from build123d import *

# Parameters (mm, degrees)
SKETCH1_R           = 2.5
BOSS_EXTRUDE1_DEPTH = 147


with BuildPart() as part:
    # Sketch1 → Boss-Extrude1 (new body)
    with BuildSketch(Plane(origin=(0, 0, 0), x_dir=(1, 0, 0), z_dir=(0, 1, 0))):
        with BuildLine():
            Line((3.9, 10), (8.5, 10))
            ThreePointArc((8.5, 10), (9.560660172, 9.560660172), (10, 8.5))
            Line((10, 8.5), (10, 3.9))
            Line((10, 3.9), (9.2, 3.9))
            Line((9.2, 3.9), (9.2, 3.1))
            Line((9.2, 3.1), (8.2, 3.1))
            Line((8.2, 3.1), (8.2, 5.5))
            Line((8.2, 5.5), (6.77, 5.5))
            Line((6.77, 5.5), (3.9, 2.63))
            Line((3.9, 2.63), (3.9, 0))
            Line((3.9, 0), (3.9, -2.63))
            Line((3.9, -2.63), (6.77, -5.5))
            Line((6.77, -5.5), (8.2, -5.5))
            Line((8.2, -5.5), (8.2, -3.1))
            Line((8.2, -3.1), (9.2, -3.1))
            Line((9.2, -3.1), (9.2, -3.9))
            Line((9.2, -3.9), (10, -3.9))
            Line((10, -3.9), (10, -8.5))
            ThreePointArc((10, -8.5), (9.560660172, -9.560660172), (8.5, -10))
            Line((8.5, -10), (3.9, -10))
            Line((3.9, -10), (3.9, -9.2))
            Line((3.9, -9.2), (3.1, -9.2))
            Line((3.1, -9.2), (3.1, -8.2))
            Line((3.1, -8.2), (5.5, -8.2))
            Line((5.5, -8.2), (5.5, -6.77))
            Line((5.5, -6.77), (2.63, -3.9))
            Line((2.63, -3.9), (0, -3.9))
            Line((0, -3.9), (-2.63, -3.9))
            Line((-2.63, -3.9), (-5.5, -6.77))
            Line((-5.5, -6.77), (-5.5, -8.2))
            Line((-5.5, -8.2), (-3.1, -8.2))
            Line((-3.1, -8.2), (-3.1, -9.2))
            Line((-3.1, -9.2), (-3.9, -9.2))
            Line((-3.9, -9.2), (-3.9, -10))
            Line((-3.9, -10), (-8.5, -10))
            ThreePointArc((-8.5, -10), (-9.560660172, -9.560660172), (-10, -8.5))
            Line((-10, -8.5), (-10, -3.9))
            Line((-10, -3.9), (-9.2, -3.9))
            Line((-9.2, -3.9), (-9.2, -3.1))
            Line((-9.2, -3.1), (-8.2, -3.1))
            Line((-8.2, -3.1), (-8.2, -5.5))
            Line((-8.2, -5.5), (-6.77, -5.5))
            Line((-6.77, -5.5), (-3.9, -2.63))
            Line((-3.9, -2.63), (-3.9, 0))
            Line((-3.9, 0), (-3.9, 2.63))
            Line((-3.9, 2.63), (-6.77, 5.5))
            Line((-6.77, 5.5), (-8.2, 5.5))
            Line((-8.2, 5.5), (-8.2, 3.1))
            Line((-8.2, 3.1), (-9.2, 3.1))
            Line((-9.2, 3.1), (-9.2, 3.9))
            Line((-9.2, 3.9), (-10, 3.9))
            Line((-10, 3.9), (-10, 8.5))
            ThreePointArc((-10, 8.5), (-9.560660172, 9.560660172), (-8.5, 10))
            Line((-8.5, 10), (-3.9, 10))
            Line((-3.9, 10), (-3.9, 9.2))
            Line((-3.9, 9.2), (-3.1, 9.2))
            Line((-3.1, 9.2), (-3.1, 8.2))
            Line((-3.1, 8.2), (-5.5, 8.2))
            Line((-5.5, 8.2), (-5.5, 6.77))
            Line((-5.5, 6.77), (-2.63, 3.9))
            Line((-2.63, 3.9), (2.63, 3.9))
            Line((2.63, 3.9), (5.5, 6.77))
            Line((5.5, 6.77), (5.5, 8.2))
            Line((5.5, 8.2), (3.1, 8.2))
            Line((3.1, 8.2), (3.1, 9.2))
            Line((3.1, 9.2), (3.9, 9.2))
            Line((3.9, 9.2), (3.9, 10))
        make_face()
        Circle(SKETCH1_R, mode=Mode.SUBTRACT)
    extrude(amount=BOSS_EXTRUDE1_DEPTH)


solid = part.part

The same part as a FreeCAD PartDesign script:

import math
import FreeCAD as App
import Part
import Sketcher
from FreeCAD import Vector

doc = App.newDocument("Part")
body = doc.addObject("PartDesign::Body", "Body")

# Sketch on XZ plane
sketch1 = doc.addObject("Sketcher::SketchObject", "Sketch")
body.addObject(sketch1)
sketch1.AttachmentSupport = (doc.XZ_Plane, [""])
sketch1.MapMode = "FlatFace"
sketch1.addGeometry(Part.LineSegment(Vector(8.5, -10, 0), Vector(3.9, -10, 0)), False)
sketch1.addGeometry(Part.LineSegment(Vector(3.9, -10, 0), Vector(3.9, -9.2, 0)), False)
sketch1.addGeometry(Part.LineSegment(Vector(3.9, -9.2, 0), Vector(3.1, -9.2, 0)), False)
sketch1.addGeometry(Part.LineSegment(Vector(3.1, -9.2, 0), Vector(3.1, -8.2, 0)), False)
sketch1.addGeometry(Part.LineSegment(Vector(3.1, -8.2, 0), Vector(5.5, -8.2, 0)), False)
sketch1.addGeometry(Part.LineSegment(Vector(5.5, -8.2, 0), Vector(5.5, -6.77, 0)), False)
sketch1.addGeometry(Part.LineSegment(Vector(5.5, -6.77, 0), Vector(2.63, -3.9, 0)), False)
sketch1.addGeometry(Part.LineSegment(Vector(2.63, -3.9, 0), Vector(-2.63, -3.9, 0)), False)
sketch1.addGeometry(Part.LineSegment(Vector(-2.63, -3.9, 0), Vector(-5.5, -6.77, 0)), False)
sketch1.addGeometry(Part.LineSegment(Vector(-5.5, -6.77, 0), Vector(-5.5, -8.2, 0)), False)
sketch1.addGeometry(Part.LineSegment(Vector(-5.5, -8.2, 0), Vector(-3.1, -8.2, 0)), False)
sketch1.addGeometry(Part.LineSegment(Vector(-3.1, -8.2, 0), Vector(-3.1, -9.2, 0)), False)
sketch1.addGeometry(Part.LineSegment(Vector(-3.1, -9.2, 0), Vector(-3.9, -9.2, 0)), False)
sketch1.addGeometry(Part.LineSegment(Vector(-3.9, -9.2, 0), Vector(-3.9, -10, 0)), False)
sketch1.addGeometry(Part.LineSegment(Vector(-3.9, -10, 0), Vector(-8.5, -10, 0)), False)
sketch1.addGeometry(Part.ArcOfCircle(Part.Circle(Vector(-8.5, -8.5, 0), Vector(0, 0, 1), 1.5), math.radians(180), math.radians(270)), False)
sketch1.addGeometry(Part.LineSegment(Vector(-10, -8.5, 0), Vector(-10, -3.9, 0)), False)
sketch1.addGeometry(Part.LineSegment(Vector(-10, -3.9, 0), Vector(-9.2, -3.9, 0)), False)
sketch1.addGeometry(Part.LineSegment(Vector(-9.2, -3.9, 0), Vector(-9.2, -3.1, 0)), False)
sketch1.addGeometry(Part.LineSegment(Vector(-9.2, -3.1, 0), Vector(-8.2, -3.1, 0)), False)
sketch1.addGeometry(Part.LineSegment(Vector(-8.2, -3.1, 0), Vector(-8.2, -5.5, 0)), False)
sketch1.addGeometry(Part.LineSegment(Vector(-8.2, -5.5, 0), Vector(-6.77, -5.5, 0)), False)
sketch1.addGeometry(Part.LineSegment(Vector(-6.77, -5.5, 0), Vector(-3.9, -2.63, 0)), False)
sketch1.addGeometry(Part.LineSegment(Vector(-3.9, -2.63, 0), Vector(-3.9, 2.63, 0)), False)
sketch1.addGeometry(Part.LineSegment(Vector(-3.9, 2.63, 0), Vector(-6.77, 5.5, 0)), False)
sketch1.addGeometry(Part.LineSegment(Vector(-6.77, 5.5, 0), Vector(-8.2, 5.5, 0)), False)
sketch1.addGeometry(Part.LineSegment(Vector(-8.2, 5.5, 0), Vector(-8.2, 3.1, 0)), False)
sketch1.addGeometry(Part.LineSegment(Vector(-8.2, 3.1, 0), Vector(-9.2, 3.1, 0)), False)
sketch1.addGeometry(Part.LineSegment(Vector(-9.2, 3.1, 0), Vector(-9.2, 3.9, 0)), False)
sketch1.addGeometry(Part.LineSegment(Vector(-9.2, 3.9, 0), Vector(-10, 3.9, 0)), False)
sketch1.addGeometry(Part.LineSegment(Vector(-10, 3.9, 0), Vector(-10, 8.5, 0)), False)
sketch1.addGeometry(Part.ArcOfCircle(Part.Circle(Vector(-8.5, 8.5, 0), Vector(0, 0, 1), 1.5), math.radians(90), math.radians(180)), False)
sketch1.addGeometry(Part.LineSegment(Vector(-8.5, 10, 0), Vector(-3.9, 10, 0)), False)
sketch1.addGeometry(Part.LineSegment(Vector(-3.9, 10, 0), Vector(-3.9, 9.2, 0)), False)
sketch1.addGeometry(Part.LineSegment(Vector(-3.9, 9.2, 0), Vector(-3.1, 9.2, 0)), False)
sketch1.addGeometry(Part.LineSegment(Vector(-3.1, 9.2, 0), Vector(-3.1, 8.2, 0)), False)
sketch1.addGeometry(Part.LineSegment(Vector(-3.1, 8.2, 0), Vector(-5.5, 8.2, 0)), False)
sketch1.addGeometry(Part.LineSegment(Vector(-5.5, 8.2, 0), Vector(-5.5, 6.77, 0)), False)
sketch1.addGeometry(Part.LineSegment(Vector(-5.5, 6.77, 0), Vector(-2.63, 3.9, 0)), False)
sketch1.addGeometry(Part.LineSegment(Vector(-2.63, 3.9, 0), Vector(2.63, 3.9, 0)), False)
sketch1.addGeometry(Part.LineSegment(Vector(2.63, 3.9, 0), Vector(5.5, 6.77, 0)), False)
sketch1.addGeometry(Part.LineSegment(Vector(5.5, 6.77, 0), Vector(5.5, 8.2, 0)), False)
sketch1.addGeometry(Part.LineSegment(Vector(5.5, 8.2, 0), Vector(3.1, 8.2, 0)), False)
sketch1.addGeometry(Part.LineSegment(Vector(3.1, 8.2, 0), Vector(3.1, 9.2, 0)), False)
sketch1.addGeometry(Part.LineSegment(Vector(3.1, 9.2, 0), Vector(3.9, 9.2, 0)), False)
sketch1.addGeometry(Part.LineSegment(Vector(3.9, 9.2, 0), Vector(3.9, 10, 0)), False)
sketch1.addGeometry(Part.LineSegment(Vector(3.9, 10, 0), Vector(8.5, 10, 0)), False)
sketch1.addGeometry(Part.ArcOfCircle(Part.Circle(Vector(8.5, 8.5, 0), Vector(0, 0, 1), 1.5), math.radians(0), math.radians(90)), False)
sketch1.addGeometry(Part.LineSegment(Vector(10, 8.5, 0), Vector(10, 3.9, 0)), False)
sketch1.addGeometry(Part.LineSegment(Vector(10, 3.9, 0), Vector(9.2, 3.9, 0)), False)
sketch1.addGeometry(Part.LineSegment(Vector(9.2, 3.9, 0), Vector(9.2, 3.1, 0)), False)
sketch1.addGeometry(Part.LineSegment(Vector(9.2, 3.1, 0), Vector(8.2, 3.1, 0)), False)
sketch1.addGeometry(Part.LineSegment(Vector(8.2, 3.1, 0), Vector(8.2, 5.5, 0)), False)
sketch1.addGeometry(Part.LineSegment(Vector(8.2, 5.5, 0), Vector(6.77, 5.5, 0)), False)
sketch1.addGeometry(Part.LineSegment(Vector(6.77, 5.5, 0), Vector(3.9, 2.63, 0)), False)
sketch1.addGeometry(Part.LineSegment(Vector(3.9, 2.63, 0), Vector(3.9, -2.63, 0)), False)
sketch1.addGeometry(Part.LineSegment(Vector(3.9, -2.63, 0), Vector(6.77, -5.5, 0)), False)
sketch1.addGeometry(Part.LineSegment(Vector(6.77, -5.5, 0), Vector(8.2, -5.5, 0)), False)
sketch1.addGeometry(Part.LineSegment(Vector(8.2, -5.5, 0), Vector(8.2, -3.1, 0)), False)
sketch1.addGeometry(Part.LineSegment(Vector(8.2, -3.1, 0), Vector(9.2, -3.1, 0)), False)
sketch1.addGeometry(Part.LineSegment(Vector(9.2, -3.1, 0), Vector(9.2, -3.9, 0)), False)
sketch1.addGeometry(Part.LineSegment(Vector(9.2, -3.9, 0), Vector(10, -3.9, 0)), False)
sketch1.addGeometry(Part.LineSegment(Vector(10, -3.9, 0), Vector(10, -8.5, 0)), False)
sketch1.addGeometry(Part.ArcOfCircle(Part.Circle(Vector(8.5, -8.5, 0), Vector(0, 0, 1), 1.5), math.radians(-90), math.radians(0)), False)
sketch1.addGeometry(Part.Circle(Vector(0, 0, 0), Vector(0, 0, 1), 2.5), False)
sketch1.addConstraint(Sketcher.Constraint("Coincident", 0, 2, 1, 1))
sketch1.addConstraint(Sketcher.Constraint("Coincident", 1, 2, 2, 1))
sketch1.addConstraint(Sketcher.Constraint("Coincident", 2, 2, 3, 1))
sketch1.addConstraint(Sketcher.Constraint("Coincident", 3, 2, 4, 1))
sketch1.addConstraint(Sketcher.Constraint("Coincident", 4, 2, 5, 1))
sketch1.addConstraint(Sketcher.Constraint("Coincident", 5, 2, 6, 1))
sketch1.addConstraint(Sketcher.Constraint("Coincident", 6, 2, 7, 1))
sketch1.addConstraint(Sketcher.Constraint("Coincident", 7, 2, 8, 1))
sketch1.addConstraint(Sketcher.Constraint("Coincident", 8, 2, 9, 1))
sketch1.addConstraint(Sketcher.Constraint("Coincident", 9, 2, 10, 1))
sketch1.addConstraint(Sketcher.Constraint("Coincident", 10, 2, 11, 1))
sketch1.addConstraint(Sketcher.Constraint("Coincident", 11, 2, 12, 1))
sketch1.addConstraint(Sketcher.Constraint("Coincident", 12, 2, 13, 1))
sketch1.addConstraint(Sketcher.Constraint("Coincident", 13, 2, 14, 1))
sketch1.addConstraint(Sketcher.Constraint("Tangent", 14, 2, 15, 2))
sketch1.addConstraint(Sketcher.Constraint("Tangent", 15, 1, 16, 1))
sketch1.addConstraint(Sketcher.Constraint("Coincident", 16, 2, 17, 1))
sketch1.addConstraint(Sketcher.Constraint("Coincident", 17, 2, 18, 1))
sketch1.addConstraint(Sketcher.Constraint("Coincident", 18, 2, 19, 1))
sketch1.addConstraint(Sketcher.Constraint("Coincident", 19, 2, 20, 1))
sketch1.addConstraint(Sketcher.Constraint("Coincident", 20, 2, 21, 1))
sketch1.addConstraint(Sketcher.Constraint("Coincident", 21, 2, 22, 1))
sketch1.addConstraint(Sketcher.Constraint("Coincident", 22, 2, 23, 1))
sketch1.addConstraint(Sketcher.Constraint("Coincident", 23, 2, 24, 1))
sketch1.addConstraint(Sketcher.Constraint("Coincident", 24, 2, 25, 1))
sketch1.addConstraint(Sketcher.Constraint("Coincident", 25, 2, 26, 1))
sketch1.addConstraint(Sketcher.Constraint("Coincident", 26, 2, 27, 1))
sketch1.addConstraint(Sketcher.Constraint("Coincident", 27, 2, 28, 1))
sketch1.addConstraint(Sketcher.Constraint("Coincident", 28, 2, 29, 1))
sketch1.addConstraint(Sketcher.Constraint("Coincident", 29, 2, 30, 1))
sketch1.addConstraint(Sketcher.Constraint("Tangent", 30, 2, 31, 2))
sketch1.addConstraint(Sketcher.Constraint("Tangent", 31, 1, 32, 1))
sketch1.addConstraint(Sketcher.Constraint("Coincident", 32, 2, 33, 1))
sketch1.addConstraint(Sketcher.Constraint("Coincident", 33, 2, 34, 1))
sketch1.addConstraint(Sketcher.Constraint("Coincident", 34, 2, 35, 1))
sketch1.addConstraint(Sketcher.Constraint("Coincident", 35, 2, 36, 1))
sketch1.addConstraint(Sketcher.Constraint("Coincident", 36, 2, 37, 1))
sketch1.addConstraint(Sketcher.Constraint("Coincident", 37, 2, 38, 1))
sketch1.addConstraint(Sketcher.Constraint("Coincident", 38, 2, 39, 1))
sketch1.addConstraint(Sketcher.Constraint("Coincident", 39, 2, 40, 1))
sketch1.addConstraint(Sketcher.Constraint("Coincident", 40, 2, 41, 1))
sketch1.addConstraint(Sketcher.Constraint("Coincident", 41, 2, 42, 1))
sketch1.addConstraint(Sketcher.Constraint("Coincident", 42, 2, 43, 1))
sketch1.addConstraint(Sketcher.Constraint("Coincident", 43, 2, 44, 1))
sketch1.addConstraint(Sketcher.Constraint("Coincident", 44, 2, 45, 1))
sketch1.addConstraint(Sketcher.Constraint("Coincident", 45, 2, 46, 1))
sketch1.addConstraint(Sketcher.Constraint("Tangent", 46, 2, 47, 2))
sketch1.addConstraint(Sketcher.Constraint("Tangent", 47, 1, 48, 1))
sketch1.addConstraint(Sketcher.Constraint("Coincident", 48, 2, 49, 1))
sketch1.addConstraint(Sketcher.Constraint("Coincident", 49, 2, 50, 1))
sketch1.addConstraint(Sketcher.Constraint("Coincident", 50, 2, 51, 1))
sketch1.addConstraint(Sketcher.Constraint("Coincident", 51, 2, 52, 1))
sketch1.addConstraint(Sketcher.Constraint("Coincident", 52, 2, 53, 1))
sketch1.addConstraint(Sketcher.Constraint("Coincident", 53, 2, 54, 1))
sketch1.addConstraint(Sketcher.Constraint("Coincident", 54, 2, 55, 1))
sketch1.addConstraint(Sketcher.Constraint("Coincident", 55, 2, 56, 1))
sketch1.addConstraint(Sketcher.Constraint("Coincident", 56, 2, 57, 1))
sketch1.addConstraint(Sketcher.Constraint("Coincident", 57, 2, 58, 1))
sketch1.addConstraint(Sketcher.Constraint("Coincident", 58, 2, 59, 1))
sketch1.addConstraint(Sketcher.Constraint("Coincident", 59, 2, 60, 1))
sketch1.addConstraint(Sketcher.Constraint("Coincident", 60, 2, 61, 1))
sketch1.addConstraint(Sketcher.Constraint("Coincident", 61, 2, 62, 1))
sketch1.addConstraint(Sketcher.Constraint("Tangent", 62, 2, 63, 2))
sketch1.addConstraint(Sketcher.Constraint("Tangent", 63, 1, 0, 1))
sketch1.addConstraint(Sketcher.Constraint("Horizontal", 0))
sketch1.addConstraint(Sketcher.Constraint("Vertical", 1))
sketch1.addConstraint(Sketcher.Constraint("Horizontal", 2))
sketch1.addConstraint(Sketcher.Constraint("Vertical", 3))
sketch1.addConstraint(Sketcher.Constraint("Horizontal", 4))
sketch1.addConstraint(Sketcher.Constraint("Vertical", 5))
sketch1.addConstraint(Sketcher.Constraint("Horizontal", 7))
sketch1.addConstraint(Sketcher.Constraint("Vertical", 9))
sketch1.addConstraint(Sketcher.Constraint("Horizontal", 10))
sketch1.addConstraint(Sketcher.Constraint("Vertical", 11))
sketch1.addConstraint(Sketcher.Constraint("Horizontal", 12))
sketch1.addConstraint(Sketcher.Constraint("Vertical", 13))
sketch1.addConstraint(Sketcher.Constraint("Horizontal", 14))
sketch1.addConstraint(Sketcher.Constraint("Vertical", 16))
sketch1.addConstraint(Sketcher.Constraint("Horizontal", 17))
sketch1.addConstraint(Sketcher.Constraint("Vertical", 18))
sketch1.addConstraint(Sketcher.Constraint("Horizontal", 19))
sketch1.addConstraint(Sketcher.Constraint("Vertical", 20))
sketch1.addConstraint(Sketcher.Constraint("Horizontal", 21))
sketch1.addConstraint(Sketcher.Constraint("Vertical", 23))
sketch1.addConstraint(Sketcher.Constraint("Horizontal", 25))
sketch1.addConstraint(Sketcher.Constraint("Vertical", 26))
sketch1.addConstraint(Sketcher.Constraint("Horizontal", 27))
sketch1.addConstraint(Sketcher.Constraint("Vertical", 28))
sketch1.addConstraint(Sketcher.Constraint("Horizontal", 29))
sketch1.addConstraint(Sketcher.Constraint("Vertical", 30))
sketch1.addConstraint(Sketcher.Constraint("Horizontal", 32))
sketch1.addConstraint(Sketcher.Constraint("Vertical", 33))
sketch1.addConstraint(Sketcher.Constraint("Horizontal", 34))
sketch1.addConstraint(Sketcher.Constraint("Vertical", 35))
sketch1.addConstraint(Sketcher.Constraint("Horizontal", 36))
sketch1.addConstraint(Sketcher.Constraint("Vertical", 37))
sketch1.addConstraint(Sketcher.Constraint("Horizontal", 39))
sketch1.addConstraint(Sketcher.Constraint("Vertical", 41))
sketch1.addConstraint(Sketcher.Constraint("Horizontal", 42))
sketch1.addConstraint(Sketcher.Constraint("Vertical", 43))
sketch1.addConstraint(Sketcher.Constraint("Horizontal", 44))
sketch1.addConstraint(Sketcher.Constraint("Vertical", 45))
sketch1.addConstraint(Sketcher.Constraint("Horizontal", 46))
sketch1.addConstraint(Sketcher.Constraint("Vertical", 48))
sketch1.addConstraint(Sketcher.Constraint("Horizontal", 49))
sketch1.addConstraint(Sketcher.Constraint("Vertical", 50))
sketch1.addConstraint(Sketcher.Constraint("Horizontal", 51))
sketch1.addConstraint(Sketcher.Constraint("Vertical", 52))
sketch1.addConstraint(Sketcher.Constraint("Horizontal", 53))
sketch1.addConstraint(Sketcher.Constraint("Vertical", 55))
sketch1.addConstraint(Sketcher.Constraint("Horizontal", 57))
sketch1.addConstraint(Sketcher.Constraint("Vertical", 58))
sketch1.addConstraint(Sketcher.Constraint("Horizontal", 59))
sketch1.addConstraint(Sketcher.Constraint("Vertical", 60))
sketch1.addConstraint(Sketcher.Constraint("Horizontal", 61))
sketch1.addConstraint(Sketcher.Constraint("Vertical", 62))
sketch1.addConstraint(Sketcher.Constraint("Coincident", 64, 3, -1, 1))
sketch1.addConstraint(Sketcher.Constraint("Equal", 15, 31))
sketch1.addConstraint(Sketcher.Constraint("Equal", 31, 47))
sketch1.addConstraint(Sketcher.Constraint("Equal", 47, 63))
sketch1.addConstraint(Sketcher.Constraint("Symmetric", 15, 3, 47, 3, -1, 1))
sketch1.addConstraint(Sketcher.Constraint("Symmetric", 31, 3, 63, 3, -1, 1))
sketch1.addConstraint(Sketcher.Constraint("Symmetric", 1, 2, 33, 2, -1, 1))
sketch1.addConstraint(Sketcher.Constraint("Symmetric", 3, 2, 35, 2, -1, 1))
sketch1.addConstraint(Sketcher.Constraint("Symmetric", 5, 2, 37, 2, -1, 1))
sketch1.addConstraint(Sketcher.Constraint("Symmetric", 6, 2, 38, 2, -1, 1))
sketch1.addConstraint(Sketcher.Constraint("Symmetric", 8, 2, 40, 2, -1, 1))
sketch1.addConstraint(Sketcher.Constraint("Symmetric", 10, 2, 42, 2, -1, 1))
sketch1.addConstraint(Sketcher.Constraint("Symmetric", 12, 2, 44, 2, -1, 1))
sketch1.addConstraint(Sketcher.Constraint("Symmetric", 17, 2, 49, 2, -1, 1))
sketch1.addConstraint(Sketcher.Constraint("Symmetric", 19, 2, 51, 2, -1, 1))
sketch1.addConstraint(Sketcher.Constraint("Symmetric", 21, 2, 53, 2, -1, 1))
sketch1.addConstraint(Sketcher.Constraint("Symmetric", 22, 2, 54, 2, -1, 1))
sketch1.addConstraint(Sketcher.Constraint("Symmetric", 24, 2, 56, 2, -1, 1))
sketch1.addConstraint(Sketcher.Constraint("Symmetric", 26, 2, 58, 2, -1, 1))
sketch1.addConstraint(Sketcher.Constraint("Symmetric", 28, 2, 60, 2, -1, 1))
sketch1.addConstraint(Sketcher.Constraint("Symmetric", 31, 3, 47, 3, -2))
sketch1.addConstraint(Sketcher.Constraint("Symmetric", 5, 2, 8, 2, -2))
sketch1.addConstraint(Sketcher.Constraint("Symmetric", 3, 2, 10, 2, -2))
sketch1.addConstraint(Sketcher.Constraint("Symmetric", 1, 2, 12, 2, -2))
sketch1.addConstraint(Sketcher.Constraint("Symmetric", 28, 2, 49, 2, -2))
sketch1.addConstraint(Sketcher.Constraint("Symmetric", 26, 2, 51, 2, -2))
sketch1.addConstraint(Sketcher.Constraint("Symmetric", 24, 2, 53, 2, -2))
sketch1.addConstraint(Sketcher.Constraint("Perpendicular", 6, 8))
sketch1.addConstraint(Sketcher.Constraint("Parallel", 8, 22))
sketch1.addConstraint(Sketcher.Constraint("Perpendicular", 22, 24))
sketch1.addConstraint(Sketcher.Constraint("Perpendicular", 38, 40))
sketch1.addConstraint(Sketcher.Constraint("Perpendicular", 54, 56))
sketch1.addConstraint(Sketcher.Constraint("Horizontal", 7, 2, 16, 2))
sketch1.addConstraint(Sketcher.Constraint("Horizontal", 23, 2, 54, 2))
sketch1.addConstraint(Sketcher.Constraint("Vertical", 13, 2, 22, 2))
sketch1.addConstraint(Sketcher.Constraint("Equal", 12, 17))
sketch1.addConstraint(Sketcher.Constraint("Equal", 61, 1))
sketch1.addConstraint(Sketcher.Constraint("Equal", 59, 3))
sketch1.addConstraint(Sketcher.Constraint("Equal", 57, 5))
sketch1.addConstraint(Sketcher.Constraint("Equal", 46, 16))
sketch1.addConstraint(Sketcher.Constraint("Equal", 13, 18))
sketch1.addConstraint(Sketcher.Constraint("Equal", 42, 20))
sketch1.addConstraint(Sketcher.Constraint("Equal", 39, 23))
sketch1.addConstraint(Sketcher.Constraint("Diameter", 64, 5.0))
sketch1.addConstraint(Sketcher.Constraint("Radius", 15, 1.5))
sketch1.addConstraint(Sketcher.Constraint("DistanceX", 19, 1, 19, 2, 1.0))
sketch1.addConstraint(Sketcher.Constraint("DistanceX", 0, 2, 0, 1, 4.6))
sketch1.addConstraint(Sketcher.Constraint("DistanceX", 2, 2, 2, 1, 0.8))
sketch1.addConstraint(Sketcher.Constraint("DistanceX", 4, 1, 4, 2, 2.4))
sketch1.addConstraint(Sketcher.Constraint("DistanceY", 0, 2, -1, 1, 10.0))
sketch1.addConstraint(Sketcher.Constraint("DistanceX", 7, 2, 7, 1, 5.26))
pad1 = doc.addObject("PartDesign::Pad", "Pad")
body.addObject(pad1)
pad1.Profile = sketch1
pad1.Length = 147
pad1.Reversed = True

doc.recompute()
